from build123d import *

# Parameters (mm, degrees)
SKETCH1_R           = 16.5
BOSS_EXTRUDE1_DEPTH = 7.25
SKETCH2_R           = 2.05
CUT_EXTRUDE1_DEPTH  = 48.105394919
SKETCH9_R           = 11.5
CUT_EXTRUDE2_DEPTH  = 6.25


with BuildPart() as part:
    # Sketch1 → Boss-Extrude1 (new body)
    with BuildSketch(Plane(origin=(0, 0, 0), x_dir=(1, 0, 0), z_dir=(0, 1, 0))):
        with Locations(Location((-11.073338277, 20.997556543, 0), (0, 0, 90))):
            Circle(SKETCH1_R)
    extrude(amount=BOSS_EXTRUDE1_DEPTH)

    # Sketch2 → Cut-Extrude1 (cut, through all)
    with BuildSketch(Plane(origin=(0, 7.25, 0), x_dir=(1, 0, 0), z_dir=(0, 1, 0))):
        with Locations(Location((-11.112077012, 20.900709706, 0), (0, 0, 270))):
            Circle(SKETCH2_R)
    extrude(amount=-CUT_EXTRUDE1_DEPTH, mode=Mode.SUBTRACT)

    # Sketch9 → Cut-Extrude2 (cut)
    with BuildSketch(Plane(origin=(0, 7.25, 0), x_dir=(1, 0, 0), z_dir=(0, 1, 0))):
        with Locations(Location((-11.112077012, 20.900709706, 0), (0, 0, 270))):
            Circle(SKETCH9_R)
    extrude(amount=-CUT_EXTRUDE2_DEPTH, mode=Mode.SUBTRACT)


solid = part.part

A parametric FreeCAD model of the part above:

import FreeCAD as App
import Part
import Sketcher

V = App.Vector

doc = App.newDocument("Part")
body = doc.addObject("PartDesign::Body", "Body")

# Sketch on XZ plane
sketch1 = body.newObject("Sketcher::SketchObject", "Sketch")
sketch1.AttachmentSupport = (doc.getObject("XZ_Plane"), [""])
sketch1.MapMode = "FlatFace"
sketch1.addGeometry(Part.Circle(V(-11, -21, 0), V(0, 0, 1), 16), False)
sketch1.addConstraint([
    Sketcher.Constraint("Diameter", 0, 33.0),
    Sketcher.Constraint("DistanceX", 0, 3, -1, 1, 11.073338),
    Sketcher.Constraint("DistanceY", 0, 3, -1, 1, 20.997557),
])
pad1 = body.newObject("PartDesign::Pad", "Pad")
pad1.Profile = sketch1
pad1.Length = 7.25
pad1.Reversed = True

# Sketch on XZ plane
sketch2 = body.newObject("Sketcher::SketchObject", "Sketch001")
sketch2.AttachmentSupport = (doc.getObject("XZ_Plane"), [""])
sketch2.MapMode = "FlatFace"
sketch2.AttachmentOffset = App.Placement(V(0, 0, -7.25), App.Rotation())
sketch2.addGeometry(Part.Circle(V(-11.1, -20.9, 0), V(0, 0, 1), 2), False)
sketch2.addConstraint([
    Sketcher.Constraint("Diameter", 0, 4.1),
    Sketcher.Constraint("DistanceY", 0, 3, -1, 1, 20.90071),
    Sketcher.Constraint("DistanceX", 0, 3, -1, 1, 11.112077),
])
pocket1 = body.newObject("PartDesign::Pocket", "Pocket")
pocket1.Profile = sketch2
pocket1.Type = "ThroughAll"
pocket1.Reversed = True

# Sketch on XZ plane
sketch3 = body.newObject("Sketcher::SketchObject", "Sketch002")
sketch3.AttachmentSupport = (doc.getObject("XZ_Plane"), [""])
sketch3.MapMode = "FlatFace"
sketch3.AttachmentOffset = App.Placement(V(0, 0, -7.25), App.Rotation())
sketch3.addGeometry(Part.Circle(V(-11, -21, 0), V(0, 0, 1), 12), False)
sketch3.addConstraint([
    Sketcher.Constraint("Diameter", 0, 23.0),
    Sketcher.Constraint("DistanceY", 0, 3, -1, 1, 20.90071),
    Sketcher.Constraint("DistanceX", 0, 3, -1, 1, 11.112077),
])
pocket2 = body.newObject("PartDesign::Pocket", "Pocket001")
pocket2.Profile = sketch3
pocket2.Length = 6.25
pocket2.Reversed = True

doc.recompute()
